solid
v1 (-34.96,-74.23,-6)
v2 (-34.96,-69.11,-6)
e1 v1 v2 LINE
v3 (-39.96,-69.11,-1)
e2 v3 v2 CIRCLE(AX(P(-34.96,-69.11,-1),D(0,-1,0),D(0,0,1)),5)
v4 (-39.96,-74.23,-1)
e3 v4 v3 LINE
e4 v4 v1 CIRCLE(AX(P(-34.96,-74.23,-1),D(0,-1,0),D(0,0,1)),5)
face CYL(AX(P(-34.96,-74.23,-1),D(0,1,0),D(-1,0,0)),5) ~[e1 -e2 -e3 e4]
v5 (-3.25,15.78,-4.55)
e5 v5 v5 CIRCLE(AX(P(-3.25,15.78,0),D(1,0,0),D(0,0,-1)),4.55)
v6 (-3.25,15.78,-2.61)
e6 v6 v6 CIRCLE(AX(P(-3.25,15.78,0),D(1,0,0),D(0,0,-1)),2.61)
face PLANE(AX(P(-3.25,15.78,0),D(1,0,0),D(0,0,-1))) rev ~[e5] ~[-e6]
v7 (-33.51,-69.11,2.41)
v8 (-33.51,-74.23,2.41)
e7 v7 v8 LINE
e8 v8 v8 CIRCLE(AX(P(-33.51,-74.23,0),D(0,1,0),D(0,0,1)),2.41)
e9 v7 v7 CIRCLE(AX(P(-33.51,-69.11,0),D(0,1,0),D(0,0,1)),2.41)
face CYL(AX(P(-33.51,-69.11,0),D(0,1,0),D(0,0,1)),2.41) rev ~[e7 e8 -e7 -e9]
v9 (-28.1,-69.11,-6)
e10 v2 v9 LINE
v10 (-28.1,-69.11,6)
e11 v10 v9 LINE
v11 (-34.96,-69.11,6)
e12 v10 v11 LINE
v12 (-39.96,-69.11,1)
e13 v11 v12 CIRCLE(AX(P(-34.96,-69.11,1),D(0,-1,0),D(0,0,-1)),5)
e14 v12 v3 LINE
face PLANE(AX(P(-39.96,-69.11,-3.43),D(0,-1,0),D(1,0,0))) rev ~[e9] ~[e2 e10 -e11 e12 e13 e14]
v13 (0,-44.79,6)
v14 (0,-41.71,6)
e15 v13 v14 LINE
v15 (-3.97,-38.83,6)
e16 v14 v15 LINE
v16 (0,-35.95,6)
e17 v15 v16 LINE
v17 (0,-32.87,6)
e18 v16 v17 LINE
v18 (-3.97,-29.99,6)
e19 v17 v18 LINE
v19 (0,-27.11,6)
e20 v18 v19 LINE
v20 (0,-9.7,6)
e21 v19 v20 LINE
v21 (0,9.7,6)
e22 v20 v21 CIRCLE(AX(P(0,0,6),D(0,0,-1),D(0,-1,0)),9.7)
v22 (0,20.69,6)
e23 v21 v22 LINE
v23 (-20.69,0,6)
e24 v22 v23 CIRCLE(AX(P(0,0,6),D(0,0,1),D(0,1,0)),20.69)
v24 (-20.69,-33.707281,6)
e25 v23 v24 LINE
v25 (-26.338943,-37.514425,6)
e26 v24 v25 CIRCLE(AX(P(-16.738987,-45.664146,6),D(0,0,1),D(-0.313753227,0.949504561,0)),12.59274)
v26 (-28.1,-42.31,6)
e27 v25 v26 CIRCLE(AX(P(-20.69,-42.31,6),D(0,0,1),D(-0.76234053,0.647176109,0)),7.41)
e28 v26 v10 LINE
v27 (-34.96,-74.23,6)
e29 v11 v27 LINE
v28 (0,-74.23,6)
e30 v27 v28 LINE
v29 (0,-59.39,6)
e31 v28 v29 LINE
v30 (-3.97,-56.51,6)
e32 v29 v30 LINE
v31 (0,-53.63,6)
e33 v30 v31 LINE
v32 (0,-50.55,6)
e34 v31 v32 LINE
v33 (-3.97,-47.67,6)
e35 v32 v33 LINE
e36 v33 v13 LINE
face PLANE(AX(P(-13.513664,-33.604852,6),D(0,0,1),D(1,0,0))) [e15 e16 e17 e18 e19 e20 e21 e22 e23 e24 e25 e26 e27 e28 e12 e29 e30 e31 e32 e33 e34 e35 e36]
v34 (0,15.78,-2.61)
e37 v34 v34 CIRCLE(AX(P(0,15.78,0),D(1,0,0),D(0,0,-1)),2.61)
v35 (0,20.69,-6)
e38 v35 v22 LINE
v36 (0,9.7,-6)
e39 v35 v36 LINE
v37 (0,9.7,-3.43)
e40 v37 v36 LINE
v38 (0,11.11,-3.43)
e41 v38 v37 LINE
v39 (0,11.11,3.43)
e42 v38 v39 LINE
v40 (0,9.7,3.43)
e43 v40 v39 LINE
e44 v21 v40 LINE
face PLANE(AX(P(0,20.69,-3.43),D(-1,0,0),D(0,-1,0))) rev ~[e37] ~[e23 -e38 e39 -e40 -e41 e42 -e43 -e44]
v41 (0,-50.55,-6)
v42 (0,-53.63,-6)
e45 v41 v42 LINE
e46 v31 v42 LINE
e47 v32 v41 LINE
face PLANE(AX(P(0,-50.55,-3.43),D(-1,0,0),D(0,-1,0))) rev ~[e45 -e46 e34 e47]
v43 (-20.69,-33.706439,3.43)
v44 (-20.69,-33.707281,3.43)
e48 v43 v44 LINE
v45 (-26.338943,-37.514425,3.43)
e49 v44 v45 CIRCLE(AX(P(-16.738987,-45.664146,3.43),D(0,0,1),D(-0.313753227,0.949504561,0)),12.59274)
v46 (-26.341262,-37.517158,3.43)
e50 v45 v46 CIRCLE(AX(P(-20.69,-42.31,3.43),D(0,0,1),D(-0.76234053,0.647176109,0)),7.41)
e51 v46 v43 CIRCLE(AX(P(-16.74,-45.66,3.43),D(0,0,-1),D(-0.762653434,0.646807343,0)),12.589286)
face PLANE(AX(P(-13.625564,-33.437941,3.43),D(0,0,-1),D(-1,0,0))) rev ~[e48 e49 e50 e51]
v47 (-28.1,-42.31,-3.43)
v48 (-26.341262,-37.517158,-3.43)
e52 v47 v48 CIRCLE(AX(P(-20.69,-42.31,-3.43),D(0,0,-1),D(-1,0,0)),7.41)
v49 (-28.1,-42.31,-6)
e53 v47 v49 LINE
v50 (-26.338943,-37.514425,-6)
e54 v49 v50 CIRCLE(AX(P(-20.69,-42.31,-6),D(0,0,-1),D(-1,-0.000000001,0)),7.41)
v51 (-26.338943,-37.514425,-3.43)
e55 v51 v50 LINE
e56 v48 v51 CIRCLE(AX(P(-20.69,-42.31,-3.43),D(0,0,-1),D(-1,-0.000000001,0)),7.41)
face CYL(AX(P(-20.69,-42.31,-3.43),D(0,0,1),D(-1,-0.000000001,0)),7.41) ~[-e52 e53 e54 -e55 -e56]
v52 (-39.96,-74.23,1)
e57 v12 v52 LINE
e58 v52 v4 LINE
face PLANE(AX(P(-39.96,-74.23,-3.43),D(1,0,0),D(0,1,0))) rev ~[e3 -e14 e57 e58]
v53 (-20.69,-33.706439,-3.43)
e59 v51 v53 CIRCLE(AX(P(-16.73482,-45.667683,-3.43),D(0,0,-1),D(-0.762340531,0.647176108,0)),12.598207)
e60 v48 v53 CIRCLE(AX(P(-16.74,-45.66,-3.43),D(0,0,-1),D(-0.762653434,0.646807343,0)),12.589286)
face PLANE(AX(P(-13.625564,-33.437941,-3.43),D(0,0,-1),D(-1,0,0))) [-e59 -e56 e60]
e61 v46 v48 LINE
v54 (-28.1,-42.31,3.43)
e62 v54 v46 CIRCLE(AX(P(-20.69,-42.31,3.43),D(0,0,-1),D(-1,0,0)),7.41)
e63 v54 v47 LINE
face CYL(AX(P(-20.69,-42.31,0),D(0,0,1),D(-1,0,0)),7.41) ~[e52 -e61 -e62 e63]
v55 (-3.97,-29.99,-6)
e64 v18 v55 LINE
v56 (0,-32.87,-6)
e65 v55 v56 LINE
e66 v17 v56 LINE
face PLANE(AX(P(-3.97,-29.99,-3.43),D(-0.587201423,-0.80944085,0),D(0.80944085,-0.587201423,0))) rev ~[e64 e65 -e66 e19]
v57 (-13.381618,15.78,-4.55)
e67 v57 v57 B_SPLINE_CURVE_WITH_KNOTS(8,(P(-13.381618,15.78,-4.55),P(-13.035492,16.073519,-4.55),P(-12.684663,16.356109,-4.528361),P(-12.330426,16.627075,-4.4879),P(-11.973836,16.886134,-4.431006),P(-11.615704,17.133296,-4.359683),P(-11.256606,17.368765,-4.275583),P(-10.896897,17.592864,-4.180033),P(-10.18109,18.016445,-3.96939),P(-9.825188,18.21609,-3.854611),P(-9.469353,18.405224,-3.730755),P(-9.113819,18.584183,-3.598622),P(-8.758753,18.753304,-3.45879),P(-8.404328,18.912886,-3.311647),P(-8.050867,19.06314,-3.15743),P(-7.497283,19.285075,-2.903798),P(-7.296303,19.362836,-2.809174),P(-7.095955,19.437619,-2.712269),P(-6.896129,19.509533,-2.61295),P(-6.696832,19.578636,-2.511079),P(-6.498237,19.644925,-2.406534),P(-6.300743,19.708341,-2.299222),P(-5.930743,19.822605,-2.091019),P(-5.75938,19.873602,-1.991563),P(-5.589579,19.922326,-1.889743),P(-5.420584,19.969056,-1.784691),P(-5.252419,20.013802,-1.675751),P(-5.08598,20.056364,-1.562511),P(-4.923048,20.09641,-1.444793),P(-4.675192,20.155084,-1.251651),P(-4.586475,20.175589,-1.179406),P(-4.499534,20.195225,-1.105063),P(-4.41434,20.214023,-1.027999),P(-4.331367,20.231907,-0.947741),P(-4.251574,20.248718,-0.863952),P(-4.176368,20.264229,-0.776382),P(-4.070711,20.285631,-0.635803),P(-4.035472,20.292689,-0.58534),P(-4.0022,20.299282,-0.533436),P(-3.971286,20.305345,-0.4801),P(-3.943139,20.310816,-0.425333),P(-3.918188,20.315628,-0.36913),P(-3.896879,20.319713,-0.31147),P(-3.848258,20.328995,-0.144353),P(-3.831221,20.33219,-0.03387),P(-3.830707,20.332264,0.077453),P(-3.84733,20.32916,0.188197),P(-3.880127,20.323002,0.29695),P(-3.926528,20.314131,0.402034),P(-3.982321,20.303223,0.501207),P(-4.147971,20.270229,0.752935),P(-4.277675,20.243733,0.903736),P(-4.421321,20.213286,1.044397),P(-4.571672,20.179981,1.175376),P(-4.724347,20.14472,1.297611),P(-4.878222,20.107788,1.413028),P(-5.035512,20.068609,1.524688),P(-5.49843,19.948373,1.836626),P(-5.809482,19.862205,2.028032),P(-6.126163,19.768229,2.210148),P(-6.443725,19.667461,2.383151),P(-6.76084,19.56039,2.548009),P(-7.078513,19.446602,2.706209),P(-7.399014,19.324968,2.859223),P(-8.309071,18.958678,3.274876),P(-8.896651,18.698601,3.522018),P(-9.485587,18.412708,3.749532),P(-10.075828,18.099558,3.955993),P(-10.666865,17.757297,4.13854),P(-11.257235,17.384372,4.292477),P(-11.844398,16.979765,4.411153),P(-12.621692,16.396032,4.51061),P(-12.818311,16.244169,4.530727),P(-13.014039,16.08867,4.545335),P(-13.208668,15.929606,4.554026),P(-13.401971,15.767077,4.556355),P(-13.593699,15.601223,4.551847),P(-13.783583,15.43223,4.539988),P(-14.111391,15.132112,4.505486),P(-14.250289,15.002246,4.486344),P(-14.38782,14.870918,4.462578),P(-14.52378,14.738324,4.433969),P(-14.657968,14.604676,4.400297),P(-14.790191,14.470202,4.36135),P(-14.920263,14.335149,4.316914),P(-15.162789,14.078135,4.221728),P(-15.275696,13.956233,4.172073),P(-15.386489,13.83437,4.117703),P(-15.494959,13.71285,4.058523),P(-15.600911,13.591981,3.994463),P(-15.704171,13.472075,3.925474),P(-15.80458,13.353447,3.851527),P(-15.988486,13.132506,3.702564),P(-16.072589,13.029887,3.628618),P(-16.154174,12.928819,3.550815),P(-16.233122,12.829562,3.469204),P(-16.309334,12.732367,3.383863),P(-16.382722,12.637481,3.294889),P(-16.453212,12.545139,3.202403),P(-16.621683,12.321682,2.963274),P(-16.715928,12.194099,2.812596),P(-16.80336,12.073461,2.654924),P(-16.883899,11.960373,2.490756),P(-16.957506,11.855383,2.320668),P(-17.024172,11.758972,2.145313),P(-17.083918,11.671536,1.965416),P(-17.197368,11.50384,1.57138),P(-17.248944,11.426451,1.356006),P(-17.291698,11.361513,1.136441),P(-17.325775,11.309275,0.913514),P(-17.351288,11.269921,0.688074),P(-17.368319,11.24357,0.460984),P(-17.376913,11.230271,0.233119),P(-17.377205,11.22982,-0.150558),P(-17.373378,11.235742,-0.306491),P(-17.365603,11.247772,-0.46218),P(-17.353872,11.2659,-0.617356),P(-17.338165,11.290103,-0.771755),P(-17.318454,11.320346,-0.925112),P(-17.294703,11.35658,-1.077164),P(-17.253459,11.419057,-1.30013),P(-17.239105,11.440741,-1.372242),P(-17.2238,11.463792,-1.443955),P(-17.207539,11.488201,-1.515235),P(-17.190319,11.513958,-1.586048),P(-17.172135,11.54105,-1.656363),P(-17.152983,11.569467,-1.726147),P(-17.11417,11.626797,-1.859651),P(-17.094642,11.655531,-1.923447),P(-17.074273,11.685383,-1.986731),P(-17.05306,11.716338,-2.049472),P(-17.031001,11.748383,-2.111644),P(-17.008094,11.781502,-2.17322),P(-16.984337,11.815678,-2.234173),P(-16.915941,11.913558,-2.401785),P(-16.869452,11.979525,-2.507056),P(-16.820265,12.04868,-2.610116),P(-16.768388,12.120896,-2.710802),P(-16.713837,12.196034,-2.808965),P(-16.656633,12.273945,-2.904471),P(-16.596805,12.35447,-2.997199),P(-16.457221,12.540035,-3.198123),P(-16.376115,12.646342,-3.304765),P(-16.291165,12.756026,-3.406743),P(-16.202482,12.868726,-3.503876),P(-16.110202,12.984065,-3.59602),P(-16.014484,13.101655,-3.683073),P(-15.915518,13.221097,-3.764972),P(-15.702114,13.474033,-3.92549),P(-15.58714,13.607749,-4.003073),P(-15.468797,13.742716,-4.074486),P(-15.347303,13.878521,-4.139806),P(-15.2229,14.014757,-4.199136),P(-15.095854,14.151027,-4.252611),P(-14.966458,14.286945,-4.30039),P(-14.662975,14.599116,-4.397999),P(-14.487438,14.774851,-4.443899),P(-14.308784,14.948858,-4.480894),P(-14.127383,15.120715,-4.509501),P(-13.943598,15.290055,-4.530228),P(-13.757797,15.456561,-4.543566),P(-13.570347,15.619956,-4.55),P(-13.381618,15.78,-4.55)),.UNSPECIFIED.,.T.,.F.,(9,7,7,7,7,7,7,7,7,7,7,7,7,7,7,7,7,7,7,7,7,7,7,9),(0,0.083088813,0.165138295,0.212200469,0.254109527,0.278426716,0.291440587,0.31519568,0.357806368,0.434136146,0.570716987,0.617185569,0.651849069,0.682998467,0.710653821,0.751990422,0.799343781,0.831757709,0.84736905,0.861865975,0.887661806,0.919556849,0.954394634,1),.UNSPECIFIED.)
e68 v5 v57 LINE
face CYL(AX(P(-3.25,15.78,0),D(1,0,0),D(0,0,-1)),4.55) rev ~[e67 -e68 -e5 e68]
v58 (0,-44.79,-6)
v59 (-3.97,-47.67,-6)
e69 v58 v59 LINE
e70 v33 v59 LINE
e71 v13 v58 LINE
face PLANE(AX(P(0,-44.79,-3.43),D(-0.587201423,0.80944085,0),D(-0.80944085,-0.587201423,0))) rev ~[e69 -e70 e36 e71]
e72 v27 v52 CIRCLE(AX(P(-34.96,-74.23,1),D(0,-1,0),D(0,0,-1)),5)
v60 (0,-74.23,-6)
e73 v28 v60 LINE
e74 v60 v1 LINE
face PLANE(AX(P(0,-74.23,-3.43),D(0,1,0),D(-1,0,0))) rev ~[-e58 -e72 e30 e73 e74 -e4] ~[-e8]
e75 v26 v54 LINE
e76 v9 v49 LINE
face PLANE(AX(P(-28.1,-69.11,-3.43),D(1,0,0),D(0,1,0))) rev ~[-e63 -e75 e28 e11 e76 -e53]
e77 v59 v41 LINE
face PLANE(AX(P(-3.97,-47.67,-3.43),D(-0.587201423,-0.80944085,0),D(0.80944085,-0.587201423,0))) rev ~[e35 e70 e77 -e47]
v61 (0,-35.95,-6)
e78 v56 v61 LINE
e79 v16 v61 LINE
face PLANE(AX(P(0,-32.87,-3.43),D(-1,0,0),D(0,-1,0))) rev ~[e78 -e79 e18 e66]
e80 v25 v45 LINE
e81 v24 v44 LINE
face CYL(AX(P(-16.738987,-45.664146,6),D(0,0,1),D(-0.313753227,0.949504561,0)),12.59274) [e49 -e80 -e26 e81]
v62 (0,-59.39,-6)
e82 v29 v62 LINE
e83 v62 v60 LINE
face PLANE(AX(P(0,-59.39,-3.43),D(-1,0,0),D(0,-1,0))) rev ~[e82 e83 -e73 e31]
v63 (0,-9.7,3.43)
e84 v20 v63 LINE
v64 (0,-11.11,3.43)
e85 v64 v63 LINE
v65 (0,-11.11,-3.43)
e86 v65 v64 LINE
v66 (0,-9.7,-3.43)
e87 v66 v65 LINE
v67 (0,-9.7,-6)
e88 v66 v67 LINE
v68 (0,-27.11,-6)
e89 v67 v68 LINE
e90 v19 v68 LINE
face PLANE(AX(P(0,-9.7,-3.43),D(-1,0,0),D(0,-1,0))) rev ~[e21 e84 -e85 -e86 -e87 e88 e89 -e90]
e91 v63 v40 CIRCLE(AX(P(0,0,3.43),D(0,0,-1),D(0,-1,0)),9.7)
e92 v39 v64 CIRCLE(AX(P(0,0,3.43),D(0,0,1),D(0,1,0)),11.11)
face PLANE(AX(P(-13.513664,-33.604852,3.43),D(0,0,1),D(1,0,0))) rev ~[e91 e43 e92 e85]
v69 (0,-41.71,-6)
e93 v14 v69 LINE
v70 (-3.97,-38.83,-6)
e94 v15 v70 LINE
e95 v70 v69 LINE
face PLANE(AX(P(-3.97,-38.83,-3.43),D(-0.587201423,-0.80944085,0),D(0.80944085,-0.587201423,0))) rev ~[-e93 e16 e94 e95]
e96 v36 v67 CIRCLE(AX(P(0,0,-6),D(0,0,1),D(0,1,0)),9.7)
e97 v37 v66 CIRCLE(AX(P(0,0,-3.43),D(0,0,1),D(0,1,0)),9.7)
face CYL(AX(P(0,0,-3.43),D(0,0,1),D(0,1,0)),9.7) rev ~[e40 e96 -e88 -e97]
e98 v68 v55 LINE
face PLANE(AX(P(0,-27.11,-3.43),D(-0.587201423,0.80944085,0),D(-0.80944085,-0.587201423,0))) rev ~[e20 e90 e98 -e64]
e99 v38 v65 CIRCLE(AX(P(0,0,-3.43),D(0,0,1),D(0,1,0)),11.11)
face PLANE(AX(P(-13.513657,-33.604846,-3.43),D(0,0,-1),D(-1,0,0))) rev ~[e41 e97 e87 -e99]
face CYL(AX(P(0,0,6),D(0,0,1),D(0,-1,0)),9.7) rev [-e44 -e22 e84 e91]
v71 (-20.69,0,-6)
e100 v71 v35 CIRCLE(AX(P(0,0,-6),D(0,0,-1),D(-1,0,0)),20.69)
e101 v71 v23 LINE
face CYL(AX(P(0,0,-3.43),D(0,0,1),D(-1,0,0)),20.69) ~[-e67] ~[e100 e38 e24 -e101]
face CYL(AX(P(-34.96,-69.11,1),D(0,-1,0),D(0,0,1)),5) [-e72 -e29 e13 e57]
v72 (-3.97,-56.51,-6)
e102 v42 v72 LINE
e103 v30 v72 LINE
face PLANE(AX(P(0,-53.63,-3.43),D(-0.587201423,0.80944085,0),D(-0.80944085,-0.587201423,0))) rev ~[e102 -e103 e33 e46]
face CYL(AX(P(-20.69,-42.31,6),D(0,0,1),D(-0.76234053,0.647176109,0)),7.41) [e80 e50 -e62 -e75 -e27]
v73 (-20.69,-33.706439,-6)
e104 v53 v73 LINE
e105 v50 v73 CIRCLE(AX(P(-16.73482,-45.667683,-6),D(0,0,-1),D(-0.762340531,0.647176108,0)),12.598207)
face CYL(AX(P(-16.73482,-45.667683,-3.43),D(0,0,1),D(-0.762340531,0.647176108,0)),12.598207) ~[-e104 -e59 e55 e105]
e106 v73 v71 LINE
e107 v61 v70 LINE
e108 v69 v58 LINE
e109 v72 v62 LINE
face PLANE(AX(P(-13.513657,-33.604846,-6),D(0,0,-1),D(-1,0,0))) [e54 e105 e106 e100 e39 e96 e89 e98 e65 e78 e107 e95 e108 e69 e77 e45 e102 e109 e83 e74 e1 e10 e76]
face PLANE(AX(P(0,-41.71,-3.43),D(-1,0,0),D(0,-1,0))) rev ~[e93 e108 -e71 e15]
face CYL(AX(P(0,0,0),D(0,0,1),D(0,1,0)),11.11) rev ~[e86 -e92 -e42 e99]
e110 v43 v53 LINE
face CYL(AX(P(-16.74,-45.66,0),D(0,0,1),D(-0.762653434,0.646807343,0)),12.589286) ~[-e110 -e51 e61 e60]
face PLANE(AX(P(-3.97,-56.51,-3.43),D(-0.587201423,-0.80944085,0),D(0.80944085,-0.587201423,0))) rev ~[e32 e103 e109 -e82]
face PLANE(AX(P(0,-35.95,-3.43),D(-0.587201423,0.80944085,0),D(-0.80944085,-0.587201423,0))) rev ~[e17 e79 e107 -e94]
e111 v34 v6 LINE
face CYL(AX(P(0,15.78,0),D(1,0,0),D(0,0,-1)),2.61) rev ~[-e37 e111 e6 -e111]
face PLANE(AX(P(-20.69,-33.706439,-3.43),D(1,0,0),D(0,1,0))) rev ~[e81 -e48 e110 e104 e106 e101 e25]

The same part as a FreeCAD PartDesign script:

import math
import FreeCAD as App
import Part
import Sketcher

V = App.Vector
Q = App.Units.Quantity


def edges_at(feature, points):
    """Names of the edges that pass closest to the given points."""
    edges = feature.Shape.Edges
    near = lambda p: min(range(len(edges)), key=lambda i: edges[i].distToShape(Part.Vertex(*p))[0])
    return sorted({f"Edge{near(p) + 1}" for p in points})

doc = App.newDocument("Part")
params = doc.addObject("Spreadsheet::Sheet", "Params")
for row, (alias, value) in enumerate([
    ("sketch1_height", "16 mm"),
    ("sketch1_radius", "11.11 mm"),
    ("sketch1_radius2", "20.69 mm"),
    ("sketch1_radius3", "7.41 mm"),
    ("sketch1_height2", "26.8 mm"),
    ("pad1_length", "6.86 mm"),
    ("sketch2_radius", "9.7 mm"),
    ("sketch2_radius2", "20.69 mm"),
    ("sketch2_radius3", "7.41 mm"),
    ("sketch2_height", "26.8 mm"),
    ("sketch2_width", "39.96 mm"),
    ("pad2_length", "2.57 mm"),
    ("sketch3_diameter", "4.82 mm"),
    ("sketch4_diameter", "5.22 mm"),
    ("sketch5_radius", "9.7 mm"),
    ("sketch5_radius2", "7.41 mm"),
    ("sketch5_radius3", "20.69 mm"),
    ("sketch5_height", "26.8 mm"),
    ("sketch5_width", "39.96 mm"),
    ("pad3_length", "2.57 mm"),
    ("fillet_radius", "5 mm"),
    ("sketch6_diameter", "9.1 mm"),
], start=1):
    params.set(f"A{row}", alias)
    params.set(f"B{row}", "=" + value)
    params.setAlias(f"B{row}", alias)

body = doc.addObject("PartDesign::Body", "Body")

# Sketch on XY plane
sketch1 = doc.addObject("Sketcher::SketchObject", "Sketch")
body.addObject(sketch1)
sketch1.AttachmentSupport = (doc.XY_Plane, [""])
sketch1.MapMode = "FlatFace"
sketch1.addGeometry([
    Part.LineSegment(V(0, -27.1, 0), V(0, -11.1, 0)),  # 0
    Part.ArcOfCircle(Part.Circle(V(0, 0, 0), V(0, 0, 1), 11.1), math.radians(90), math.radians(270)),  # 1
    Part.LineSegment(V(0, 11.1, 0), V(0, 20.7, 0)),  # 2
    Part.ArcOfCircle(Part.Circle(V(0, 0, 0), V(0, 0, 1), 20.7), math.radians(90), math.radians(180)),  # 3
    Part.LineSegment(V(-20.7, 0, 0), V(-20.7, -33.7, 0)),  # 4
    Part.ArcOfCircle(Part.Circle(V(-16.7, -45.7, 0), V(0, 0, 1), 12.6), math.radians(108), math.radians(140)),  # 5
    Part.ArcOfCircle(Part.Circle(V(-20.7, -42.3, 0), V(0, 0, 1), 7.4), math.radians(140), math.radians(180)),  # 6
    Part.LineSegment(V(-28.1, -42.3, 0), V(-28.1, -69.1, 0)),  # 7
    Part.LineSegment(V(-28.1, -69.1, 0), V(-40, -69.1, 0)),  # 8
    Part.LineSegment(V(-40, -69.1, 0), V(-40, -74.2, 0)),  # 9
    Part.LineSegment(V(-40, -74.2, 0), V(0, -74.2, 0)),  # 10
    Part.LineSegment(V(0, -74.2, 0), V(0, -59.4, 0)),  # 11
    Part.LineSegment(V(0, -59.4, 0), V(-4, -56.5, 0)),  # 12
    Part.LineSegment(V(-4, -56.5, 0), V(0, -53.6, 0)),  # 13
    Part.LineSegment(V(0, -53.6, 0), V(0, -50.5, 0)),  # 14
    Part.LineSegment(V(0, -50.5, 0), V(-4, -47.7, 0)),  # 15
    Part.LineSegment(V(-4, -47.7, 0), V(0, -44.8, 0)),  # 16
    Part.LineSegment(V(0, -44.8, 0), V(0, -41.7, 0)),  # 17
    Part.LineSegment(V(0, -41.7, 0), V(-4, -38.8, 0)),  # 18
    Part.LineSegment(V(-4, -38.8, 0), V(0, -36, 0)),  # 19
    Part.LineSegment(V(0, -36, 0), V(0, -32.9, 0)),  # 20
    Part.LineSegment(V(0, -32.9, 0), V(-4, -30, 0)),  # 21
    Part.LineSegment(V(-4, -30, 0), V(0, -27.1, 0)),  # 22
], False)
sketch1.addConstraint([
    Sketcher.Constraint("Coincident", 0, 2, 1, 2),
    Sketcher.Constraint("Coincident", 1, 1, 2, 1),
    Sketcher.Constraint("Coincident", 2, 2, 3, 1),
    Sketcher.Constraint("Tangent", 3, 2, 4, 1),
    Sketcher.Constraint("Coincident", 4, 2, 5, 1),
    Sketcher.Constraint("Tangent", 5, 2, 6, 1),
    Sketcher.Constraint("Tangent", 6, 2, 7, 1),
    Sketcher.Constraint("Coincident", 7, 2, 8, 1),
    Sketcher.Constraint("Coincident", 8, 2, 9, 1),
    Sketcher.Constraint("Coincident", 9, 2, 10, 1),
    Sketcher.Constraint("Coincident", 10, 2, 11, 1),
    Sketcher.Constraint("Coincident", 11, 2, 12, 1),
    Sketcher.Constraint("Coincident", 12, 2, 13, 1),
    Sketcher.Constraint("Coincident", 13, 2, 14, 1),
    Sketcher.Constraint("Coincident", 14, 2, 15, 1),
    Sketcher.Constraint("Coincident", 15, 2, 16, 1),
    Sketcher.Constraint("Coincident", 16, 2, 17, 1),
    Sketcher.Constraint("Coincident", 17, 2, 18, 1),
    Sketcher.Constraint("Coincident", 18, 2, 19, 1),
    Sketcher.Constraint("Coincident", 19, 2, 20, 1),
    Sketcher.Constraint("Coincident", 20, 2, 21, 1),
    Sketcher.Constraint("Coincident", 21, 2, 22, 1),
    Sketcher.Constraint("Coincident", 22, 2, 0, 1),
    Sketcher.Constraint("Vertical", 0),
    Sketcher.Constraint("Vertical", 2),
    Sketcher.Constraint("Vertical", 4),
    Sketcher.Constraint("Vertical", 7),
    Sketcher.Constraint("Horizontal", 8),
    Sketcher.Constraint("Vertical", 9),
    Sketcher.Constraint("Horizontal", 10),
    Sketcher.Constraint("Vertical", 11),
    Sketcher.Constraint("Vertical", 14),
    Sketcher.Constraint("Vertical", 17),
    Sketcher.Constraint("Vertical", 20),
    Sketcher.Constraint("Coincident", 1, 3, -1, 1),
    Sketcher.Constraint("Coincident", 3, 3, -1, 1),
    Sketcher.Constraint("PointOnObject", 0, 2, -2),
    Sketcher.Constraint("PointOnObject", 1, 1, -2),
    Sketcher.Constraint("PointOnObject", 10, 2, -2),
    Sketcher.Constraint("PointOnObject", 13, 2, -2),
    Sketcher.Constraint("PointOnObject", 16, 2, -2),
    Sketcher.Constraint("PointOnObject", 19, 2, -2),
    Sketcher.Constraint("Parallel", 12, 15),
    Sketcher.Constraint("Parallel", 13, 16),
    Sketcher.Constraint("Parallel", 15, 18),
    Sketcher.Constraint("Parallel", 16, 19),
    Sketcher.Constraint("Parallel", 18, 21),
    Sketcher.Constraint("Parallel", 19, 22),
    Sketcher.Constraint("Vertical", 6, 3, 3, 2),
    Sketcher.Constraint("Vertical", 12, 2, 15, 2),
    Sketcher.Constraint("Vertical", 15, 2, 18, 2),
    Sketcher.Constraint("Vertical", 18, 2, 21, 2),
    Sketcher.Constraint("Equal", 14, 17),
    Sketcher.Constraint("Equal", 17, 20),
    Sketcher.Constraint("Equal", 12, 13),
    Sketcher.Constraint("DistanceY", 0, 1, 0, 2, Q("16 mm")),
    Sketcher.Constraint("Radius", 1, Q("11.11 mm")),
    Sketcher.Constraint("Radius", 3, Q("20.69 mm")),
    Sketcher.Constraint("Radius", 6, Q("7.41 mm")),
    Sketcher.Constraint("DistanceY", 7, 2, 7, 1, Q("26.8 mm")),
    Sketcher.Constraint("DistanceY", 6, 3, 2, 2, Q("63 mm")),
    Sketcher.Constraint("DistanceX", 8, 2, 8, 1, Q("11.86 mm")),
    Sketcher.Constraint("DistanceY", 9, 2, 9, 1, Q("5.12 mm")),
    Sketcher.Constraint("DistanceY", 11, 1, 11, 2, Q("14.84 mm")),
    Sketcher.Constraint("DistanceY", 14, 1, 14, 2, Q("3.08 mm")),
    Sketcher.Constraint("DistanceX", 5, 3, -1, 1, Q("16.74 mm")),
    Sketcher.Constraint("DistanceY", 5, 3, -1, 1, Q("45.66 mm")),
    Sketcher.Constraint("DistanceX", 12, 2, -1, 1, Q("3.97 mm")),
])
sketch1.setExpression("Constraints[55]", "Params.sketch1_height")
sketch1.setExpression("Constraints[56]", "Params.sketch1_radius")
sketch1.setExpression("Constraints[57]", "Params.sketch1_radius2")
sketch1.setExpression("Constraints[58]", "Params.sketch1_radius3")
sketch1.setExpression("Constraints[59]", "Params.sketch1_height2")
pad1 = doc.addObject("PartDesign::Pad", "Pad")
body.addObject(pad1)
pad1.Profile = sketch1
pad1.setExpression("Length", "Params.pad1_length")
pad1.Midplane = True

# Sketch on XY plane
sketch2 = doc.addObject("Sketcher::SketchObject", "Sketch001")
body.addObject(sketch2)
sketch2.AttachmentSupport = (doc.XY_Plane, [""])
sketch2.MapMode = "FlatFace"
sketch2.AttachmentOffset = App.Placement(V(0, 0, 6), App.Rotation())
sketch2.addGeometry([
    Part.LineSegment(V(-40, -69.1, 0), V(-40, -74.2, 0)),  # 0
    Part.LineSegment(V(-40, -74.2, 0), V(0, -74.2, 0)),  # 1
    Part.LineSegment(V(0, -74.2, 0), V(0, -59.4, 0)),  # 2
    Part.LineSegment(V(0, -59.4, 0), V(-4, -56.5, 0)),  # 3
    Part.LineSegment(V(-4, -56.5, 0), V(0, -53.6, 0)),  # 4
    Part.LineSegment(V(0, -53.6, 0), V(0, -50.5, 0)),  # 5
    Part.LineSegment(V(0, -50.5, 0), V(-4, -47.7, 0)),  # 6
    Part.LineSegment(V(-4, -47.7, 0), V(0, -44.8, 0)),  # 7
    Part.LineSegment(V(0, -44.8, 0), V(0, -41.7, 0)),  # 8
    Part.LineSegment(V(0, -41.7, 0), V(-4, -38.8, 0)),  # 9
    Part.LineSegment(V(-4, -38.8, 0), V(0, -36, 0)),  # 10
    Part.LineSegment(V(0, -36, 0), V(0, -32.9, 0)),  # 11
    Part.LineSegment(V(0, -32.9, 0), V(-4, -30, 0)),  # 12
    Part.LineSegment(V(-4, -30, 0), V(0, -27.1, 0)),  # 13
    Part.LineSegment(V(0, -27.1, 0), V(0, -9.7, 0)),  # 14
    Part.ArcOfCircle(Part.Circle(V(0, 0, 0), V(0, 0, 1), 9.7), math.radians(90), math.radians(270)),  # 15
    Part.LineSegment(V(0, 9.7, 0), V(0, 20.7, 0)),  # 16
    Part.ArcOfCircle(Part.Circle(V(0, 0, 0), V(0, 0, 1), 20.7), math.radians(90), math.radians(180)),  # 17
    Part.LineSegment(V(-20.7, 0, 0), V(-20.7, -33.7, 0)),  # 18
    Part.ArcOfCircle(Part.Circle(V(-16.7, -45.7, 0), V(0, 0, 1), 12.6), math.radians(108), math.radians(140)),  # 19
    Part.ArcOfCircle(Part.Circle(V(-20.7, -42.3, 0), V(0, 0, 1), 7.4), math.radians(140), math.radians(180)),  # 20
    Part.LineSegment(V(-28.1, -42.3, 0), V(-28.1, -69.1, 0)),  # 21
    Part.LineSegment(V(-28.1, -69.1, 0), V(-40, -69.1, 0)),  # 22
], False)
sketch2.addConstraint([
    Sketcher.Constraint("Coincident", 0, 2, 1, 1),
    Sketcher.Constraint("Coincident", 1, 2, 2, 1),
    Sketcher.Constraint("Coincident", 2, 2, 3, 1),
    Sketcher.Constraint("Coincident", 3, 2, 4, 1),
    Sketcher.Constraint("Coincident", 4, 2, 5, 1),
    Sketcher.Constraint("Coincident", 5, 2, 6, 1),
    Sketcher.Constraint("Coincident", 6, 2, 7, 1),
    Sketcher.Constraint("Coincident", 7, 2, 8, 1),
    Sketcher.Constraint("Coincident", 8, 2, 9, 1),
    Sketcher.Constraint("Coincident", 9, 2, 10, 1),
    Sketcher.Constraint("Coincident", 10, 2, 11, 1),
    Sketcher.Constraint("Coincident", 11, 2, 12, 1),
    Sketcher.Constraint("Coincident", 12, 2, 13, 1),
    Sketcher.Constraint("Coincident", 13, 2, 14, 1),
    Sketcher.Constraint("Coincident", 14, 2, 15, 2),
    Sketcher.Constraint("Coincident", 15, 1, 16, 1),
    Sketcher.Constraint("Coincident", 16, 2, 17, 1),
    Sketcher.Constraint("Tangent", 17, 2, 18, 1),
    Sketcher.Constraint("Coincident", 18, 2, 19, 1),
    Sketcher.Constraint("Tangent", 19, 2, 20, 1),
    Sketcher.Constraint("Tangent", 20, 2, 21, 1),
    Sketcher.Constraint("Coincident", 21, 2, 22, 1),
    Sketcher.Constraint("Coincident", 22, 2, 0, 1),
    Sketcher.Constraint("Vertical", 0),
    Sketcher.Constraint("Horizontal", 1),
    Sketcher.Constraint("Vertical", 2),
    Sketcher.Constraint("Vertical", 5),
    Sketcher.Constraint("Vertical", 8),
    Sketcher.Constraint("Vertical", 11),
    Sketcher.Constraint("Vertical", 14),
    Sketcher.Constraint("Vertical", 16),
    Sketcher.Constraint("Vertical", 18),
    Sketcher.Constraint("Vertical", 21),
    Sketcher.Constraint("Horizontal", 22),
    Sketcher.Constraint("Coincident", 15, 3, -1, 1),
    Sketcher.Constraint("Coincident", 17, 3, -1, 1),
    Sketcher.Constraint("PointOnObject", 1, 2, -2),
    Sketcher.Constraint("PointOnObject", 4, 2, -2),
    Sketcher.Constraint("PointOnObject", 7, 2, -2),
    Sketcher.Constraint("PointOnObject", 10, 2, -2),
    Sketcher.Constraint("PointOnObject", 13, 2, -2),
    Sketcher.Constraint("PointOnObject", 15, 1, -2),
    Sketcher.Constraint("Parallel", 3, 6),
    Sketcher.Constraint("Parallel", 4, 7),
    Sketcher.Constraint("Parallel", 6, 9),
    Sketcher.Constraint("Parallel", 7, 10),
    Sketcher.Constraint("Parallel", 9, 12),
    Sketcher.Constraint("Parallel", 10, 13),
    Sketcher.Constraint("Vertical", 3, 2, 6, 2),
    Sketcher.Constraint("Vertical", 6, 2, 9, 2),
    Sketcher.Constraint("Vertical", 9, 2, 12, 2),
    Sketcher.Constraint("Vertical", 20, 3, 17, 2),
    Sketcher.Constraint("Equal", 5, 8),
    Sketcher.Constraint("Equal", 8, 11),
    Sketcher.Constraint("Equal", 3, 4),
    Sketcher.Constraint("Radius", 15, Q("9.7 mm")),
    Sketcher.Constraint("Radius", 17, Q("20.69 mm")),
    Sketcher.Constraint("Radius", 20, Q("7.41 mm")),
    Sketcher.Constraint("DistanceY", 21, 2, 21, 1, Q("26.8 mm")),
    Sketcher.Constraint("DistanceX", 1, 1, 1, 2, Q("39.96 mm")),
    Sketcher.Constraint("DistanceY", 0, 2, 0, 1, Q("5.12 mm")),
    Sketcher.Constraint("DistanceY", 2, 1, 2, 2, Q("14.84 mm")),
    Sketcher.Constraint("DistanceY", 5, 1, 5, 2, Q("3.08 mm")),
    Sketcher.Constraint("DistanceY", 14, 1, 14, 2, Q("17.41 mm")),
    Sketcher.Constraint("DistanceY", 3, 2, 20, 3, Q("14.2 mm")),
    Sketcher.Constraint("DistanceX", 3, 2, -1, 1, Q("3.97 mm")),
    Sketcher.Constraint("Radius", 19, Q("12.59274 mm")),
    Sketcher.Constraint("DistanceY", 18, 2, 18, 1, Q("33.707281 mm")),
])
sketch2.setExpression("Constraints[55]", "Params.sketch2_radius")
sketch2.setExpression("Constraints[56]", "Params.sketch2_radius2")
sketch2.setExpression("Constraints[57]", "Params.sketch2_radius3")
sketch2.setExpression("Constraints[58]", "Params.sketch2_height")
sketch2.setExpression("Constraints[59]", "Params.sketch2_width")
pad2 = doc.addObject("PartDesign::Pad", "Pad001")
body.addObject(pad2)
pad2.Profile = sketch2
pad2.setExpression("Length", "Params.pad2_length")
pad2.Reversed = True

# Sketch on XZ plane
sketch3 = doc.addObject("Sketcher::SketchObject", "Sketch002")
body.addObject(sketch3)
sketch3.AttachmentSupport = (doc.XZ_Plane, [""])
sketch3.MapMode = "FlatFace"
sketch3.AttachmentOffset = App.Placement(V(0, 0, 69.11), App.Rotation())
sketch3.addGeometry(Part.Circle(V(-33.5, 0, 0), V(0, 0, 1), 2.4), False)
sketch3.addConstraint([
    Sketcher.Constraint("PointOnObject", 0, 3, -1),
    Sketcher.Constraint("Diameter", 0, Q("4.82 mm")),
    Sketcher.Constraint("DistanceX", 0, 3, -1, 1, Q("33.51 mm")),
])
sketch3.setExpression("Constraints[1]", "Params.sketch3_diameter")
pocket1 = doc.addObject("PartDesign::Pocket", "Pocket")
body.addObject(pocket1)
pocket1.Profile = sketch3
pocket1.Type = "ThroughAll"
pocket1.Reversed = True

# Sketch on YZ plane
sketch4 = doc.addObject("Sketcher::SketchObject", "Sketch003")
body.addObject(sketch4)
sketch4.AttachmentSupport = (doc.YZ_Plane, [""])
sketch4.MapMode = "FlatFace"
sketch4.addGeometry(Part.Circle(V(15.8, 0, 0), V(0, 0, 1), 2.6), False)
sketch4.addConstraint([
    Sketcher.Constraint("PointOnObject", 0, 3, -1),
    Sketcher.Constraint("Diameter", 0, Q("5.22 mm")),
    Sketcher.Constraint("DistanceX", -1, 1, 0, 3, Q("15.78 mm")),
])
sketch4.setExpression("Constraints[1]", "Params.sketch4_diameter")
pocket2 = doc.addObject("PartDesign::Pocket", "Pocket001")
body.addObject(pocket2)
pocket2.Profile = sketch4
pocket2.Type = "ThroughAll"

# Sketch on XY plane
sketch5 = doc.addObject("Sketcher::SketchObject", "Sketch004")
body.addObject(sketch5)
sketch5.AttachmentSupport = (doc.XY_Plane, [""])
sketch5.MapMode = "FlatFace"
sketch5.AttachmentOffset = App.Placement(V(0, 0, -3.43), App.Rotation())
sketch5.addGeometry([
    Part.LineSegment(V(0, 20.7, 0), V(0, 9.7, 0)),  # 0
    Part.ArcOfCircle(Part.Circle(V(0, 0, 0), V(0, 0, 1), 9.7), math.radians(90), math.radians(270)),  # 1
    Part.LineSegment(V(0, -9.7, 0), V(0, -27.1, 0)),  # 2
    Part.LineSegment(V(0, -27.1, 0), V(-4, -30, 0)),  # 3
    Part.LineSegment(V(-4, -30, 0), V(0, -32.9, 0)),  # 4
    Part.LineSegment(V(0, -32.9, 0), V(0, -36, 0)),  # 5
    Part.LineSegment(V(0, -36, 0), V(-4, -38.8, 0)),  # 6
    Part.LineSegment(V(-4, -38.8, 0), V(0, -41.7, 0)),  # 7
    Part.LineSegment(V(0, -41.7, 0), V(0, -44.8, 0)),  # 8
    Part.LineSegment(V(0, -44.8, 0), V(-4, -47.7, 0)),  # 9
    Part.LineSegment(V(-4, -47.7, 0), V(0, -50.5, 0)),  # 10
    Part.LineSegment(V(0, -50.5, 0), V(0, -53.6, 0)),  # 11
    Part.LineSegment(V(0, -53.6, 0), V(-4, -56.5, 0)),  # 12
    Part.LineSegment(V(-4, -56.5, 0), V(0, -59.4, 0)),  # 13
    Part.LineSegment(V(0, -59.4, 0), V(0, -74.2, 0)),  # 14
    Part.LineSegment(V(0, -74.2, 0), V(-40, -74.2, 0)),  # 15
    Part.LineSegment(V(-40, -74.2, 0), V(-40, -69.1, 0)),  # 16
    Part.LineSegment(V(-40, -69.1, 0), V(-28.1, -69.1, 0)),  # 17
    Part.LineSegment(V(-28.1, -69.1, 0), V(-28.1, -42.3, 0)),  # 18
    Part.ArcOfCircle(Part.Circle(V(-20.7, -42.3, 0), V(0, 0, 1), 7.4), math.radians(140), math.radians(180)),  # 19
    Part.ArcOfCircle(Part.Circle(V(-16.7, -45.7, 0), V(0, 0, 1), 12.6), math.radians(108), math.radians(140)),  # 20
    Part.LineSegment(V(-20.7, -33.7, 0), V(-20.7, 0, 0)),  # 21
    Part.ArcOfCircle(Part.Circle(V(0, 0, 0), V(0, 0, 1), 20.7), math.radians(90), math.radians(180)),  # 22
], False)
sketch5.addConstraint([
    Sketcher.Constraint("Coincident", 0, 2, 1, 1),
    Sketcher.Constraint("Coincident", 1, 2, 2, 1),
    Sketcher.Constraint("Coincident", 2, 2, 3, 1),
    Sketcher.Constraint("Coincident", 3, 2, 4, 1),
    Sketcher.Constraint("Coincident", 4, 2, 5, 1),
    Sketcher.Constraint("Coincident", 5, 2, 6, 1),
    Sketcher.Constraint("Coincident", 6, 2, 7, 1),
    Sketcher.Constraint("Coincident", 7, 2, 8, 1),
    Sketcher.Constraint("Coincident", 8, 2, 9, 1),
    Sketcher.Constraint("Coincident", 9, 2, 10, 1),
    Sketcher.Constraint("Coincident", 10, 2, 11, 1),
    Sketcher.Constraint("Coincident", 11, 2, 12, 1),
    Sketcher.Constraint("Coincident", 12, 2, 13, 1),
    Sketcher.Constraint("Coincident", 13, 2, 14, 1),
    Sketcher.Constraint("Coincident", 14, 2, 15, 1),
    Sketcher.Constraint("Coincident", 15, 2, 16, 1),
    Sketcher.Constraint("Coincident", 16, 2, 17, 1),
    Sketcher.Constraint("Coincident", 17, 2, 18, 1),
    Sketcher.Constraint("Tangent", 18, 2, 19, 2),
    Sketcher.Constraint("Tangent", 19, 1, 20, 2),
    Sketcher.Constraint("Coincident", 20, 1, 21, 1),
    Sketcher.Constraint("Tangent", 21, 2, 22, 2),
    Sketcher.Constraint("Coincident", 22, 1, 0, 1),
    Sketcher.Constraint("Vertical", 0),
    Sketcher.Constraint("Vertical", 2),
    Sketcher.Constraint("Vertical", 5),
    Sketcher.Constraint("Vertical", 8),
    Sketcher.Constraint("Vertical", 11),
    Sketcher.Constraint("Vertical", 14),
    Sketcher.Constraint("Horizontal", 15),
    Sketcher.Constraint("Vertical", 16),
    Sketcher.Constraint("Horizontal", 17),
    Sketcher.Constraint("Vertical", 18),
    Sketcher.Constraint("Vertical", 21),
    Sketcher.Constraint("Coincident", 1, 3, -1, 1),
    Sketcher.Constraint("Coincident", 22, 3, -1, 1),
    Sketcher.Constraint("PointOnObject", 0, 2, -2),
    Sketcher.Constraint("PointOnObject", 1, 2, -2),
    Sketcher.Constraint("PointOnObject", 4, 2, -2),
    Sketcher.Constraint("PointOnObject", 7, 2, -2),
    Sketcher.Constraint("PointOnObject", 10, 2, -2),
    Sketcher.Constraint("PointOnObject", 13, 2, -2),
    Sketcher.Constraint("Parallel", 3, 6),
    Sketcher.Constraint("Parallel", 4, 7),
    Sketcher.Constraint("Parallel", 6, 9),
    Sketcher.Constraint("Parallel", 7, 10),
    Sketcher.Constraint("Parallel", 9, 12),
    Sketcher.Constraint("Parallel", 10, 13),
    Sketcher.Constraint("Vertical", 3, 2, 6, 2),
    Sketcher.Constraint("Vertical", 6, 2, 9, 2),
    Sketcher.Constraint("Vertical", 9, 2, 12, 2),
    Sketcher.Constraint("Vertical", 19, 3, 20, 1),
    Sketcher.Constraint("Equal", 5, 8),
    Sketcher.Constraint("Equal", 8, 11),
    Sketcher.Constraint("Equal", 3, 4),
    Sketcher.Constraint("Radius", 1, Q("9.7 mm")),
    Sketcher.Constraint("Radius", 19, Q("7.41 mm")),
    Sketcher.Constraint("Radius", 22, Q("20.69 mm")),
    Sketcher.Constraint("DistanceY", 18, 1, 18, 2, Q("26.8 mm")),
    Sketcher.Constraint("DistanceX", 15, 2, 15, 1, Q("39.96 mm")),
    Sketcher.Constraint("DistanceY", 2, 2, 2, 1, Q("17.41 mm")),
    Sketcher.Constraint("DistanceY", 5, 2, 5, 1, Q("3.08 mm")),
    Sketcher.Constraint("DistanceY", 14, 2, 14, 1, Q("14.84 mm")),
    Sketcher.Constraint("DistanceY", 16, 1, 16, 2, Q("5.12 mm")),
    Sketcher.Constraint("DistanceY", 19, 3, 2, 2, Q("15.2 mm")),
    Sketcher.Constraint("DistanceX", 3, 2, -1, 1, Q("3.97 mm")),
    Sketcher.Constraint("Radius", 20, Q("12.598207 mm")),
    Sketcher.Constraint("DistanceY", 21, 1, 21, 2, Q("33.706439 mm")),
])
sketch5.setExpression("Constraints[55]", "Params.sketch5_radius")
sketch5.setExpression("Constraints[56]", "Params.sketch5_radius2")
sketch5.setExpression("Constraints[57]", "Params.sketch5_radius3")
sketch5.setExpression("Constraints[58]", "Params.sketch5_height")
sketch5.setExpression("Constraints[59]", "Params.sketch5_width")
pad3 = doc.addObject("PartDesign::Pad", "Pad002")
body.addObject(pad3)
pad3.Profile = sketch5
pad3.setExpression("Length", "Params.pad3_length")
pad3.Reversed = True
doc.recompute()

fillet = doc.addObject("PartDesign::Fillet", "Fillet")
body.addObject(fillet)
fillet.Base = (pad3, edges_at(pad3, [(-39.96, -71.67, -6), (-39.96, -71.67, 6)]))
fillet.setExpression("Radius", "Params.fillet_radius")

# Sketch on YZ plane
sketch6 = doc.addObject("Sketcher::SketchObject", "Sketch005")
body.addObject(sketch6)
sketch6.AttachmentSupport = (doc.YZ_Plane, [""])
sketch6.MapMode = "FlatFace"
sketch6.AttachmentOffset = App.Placement(V(0, 0, -3.25), App.Rotation())
sketch6.addGeometry(Part.Circle(V(15.8, 0, 0), V(0, 0, 1), 4.5), False)
sketch6.addConstraint([
    Sketcher.Constraint("PointOnObject", 0, 3, -1),
    Sketcher.Constraint("Diameter", 0, Q("9.1 mm")),
    Sketcher.Constraint("DistanceX", -1, 1, 0, 3, Q("15.78 mm")),
])
sketch6.setExpression("Constraints[1]", "Params.sketch6_diameter")
pocket3 = doc.addObject("PartDesign::Pocket", "Pocket002")
body.addObject(pocket3)
pocket3.Profile = sketch6
pocket3.Type = "ThroughAll"

doc.recompute()
